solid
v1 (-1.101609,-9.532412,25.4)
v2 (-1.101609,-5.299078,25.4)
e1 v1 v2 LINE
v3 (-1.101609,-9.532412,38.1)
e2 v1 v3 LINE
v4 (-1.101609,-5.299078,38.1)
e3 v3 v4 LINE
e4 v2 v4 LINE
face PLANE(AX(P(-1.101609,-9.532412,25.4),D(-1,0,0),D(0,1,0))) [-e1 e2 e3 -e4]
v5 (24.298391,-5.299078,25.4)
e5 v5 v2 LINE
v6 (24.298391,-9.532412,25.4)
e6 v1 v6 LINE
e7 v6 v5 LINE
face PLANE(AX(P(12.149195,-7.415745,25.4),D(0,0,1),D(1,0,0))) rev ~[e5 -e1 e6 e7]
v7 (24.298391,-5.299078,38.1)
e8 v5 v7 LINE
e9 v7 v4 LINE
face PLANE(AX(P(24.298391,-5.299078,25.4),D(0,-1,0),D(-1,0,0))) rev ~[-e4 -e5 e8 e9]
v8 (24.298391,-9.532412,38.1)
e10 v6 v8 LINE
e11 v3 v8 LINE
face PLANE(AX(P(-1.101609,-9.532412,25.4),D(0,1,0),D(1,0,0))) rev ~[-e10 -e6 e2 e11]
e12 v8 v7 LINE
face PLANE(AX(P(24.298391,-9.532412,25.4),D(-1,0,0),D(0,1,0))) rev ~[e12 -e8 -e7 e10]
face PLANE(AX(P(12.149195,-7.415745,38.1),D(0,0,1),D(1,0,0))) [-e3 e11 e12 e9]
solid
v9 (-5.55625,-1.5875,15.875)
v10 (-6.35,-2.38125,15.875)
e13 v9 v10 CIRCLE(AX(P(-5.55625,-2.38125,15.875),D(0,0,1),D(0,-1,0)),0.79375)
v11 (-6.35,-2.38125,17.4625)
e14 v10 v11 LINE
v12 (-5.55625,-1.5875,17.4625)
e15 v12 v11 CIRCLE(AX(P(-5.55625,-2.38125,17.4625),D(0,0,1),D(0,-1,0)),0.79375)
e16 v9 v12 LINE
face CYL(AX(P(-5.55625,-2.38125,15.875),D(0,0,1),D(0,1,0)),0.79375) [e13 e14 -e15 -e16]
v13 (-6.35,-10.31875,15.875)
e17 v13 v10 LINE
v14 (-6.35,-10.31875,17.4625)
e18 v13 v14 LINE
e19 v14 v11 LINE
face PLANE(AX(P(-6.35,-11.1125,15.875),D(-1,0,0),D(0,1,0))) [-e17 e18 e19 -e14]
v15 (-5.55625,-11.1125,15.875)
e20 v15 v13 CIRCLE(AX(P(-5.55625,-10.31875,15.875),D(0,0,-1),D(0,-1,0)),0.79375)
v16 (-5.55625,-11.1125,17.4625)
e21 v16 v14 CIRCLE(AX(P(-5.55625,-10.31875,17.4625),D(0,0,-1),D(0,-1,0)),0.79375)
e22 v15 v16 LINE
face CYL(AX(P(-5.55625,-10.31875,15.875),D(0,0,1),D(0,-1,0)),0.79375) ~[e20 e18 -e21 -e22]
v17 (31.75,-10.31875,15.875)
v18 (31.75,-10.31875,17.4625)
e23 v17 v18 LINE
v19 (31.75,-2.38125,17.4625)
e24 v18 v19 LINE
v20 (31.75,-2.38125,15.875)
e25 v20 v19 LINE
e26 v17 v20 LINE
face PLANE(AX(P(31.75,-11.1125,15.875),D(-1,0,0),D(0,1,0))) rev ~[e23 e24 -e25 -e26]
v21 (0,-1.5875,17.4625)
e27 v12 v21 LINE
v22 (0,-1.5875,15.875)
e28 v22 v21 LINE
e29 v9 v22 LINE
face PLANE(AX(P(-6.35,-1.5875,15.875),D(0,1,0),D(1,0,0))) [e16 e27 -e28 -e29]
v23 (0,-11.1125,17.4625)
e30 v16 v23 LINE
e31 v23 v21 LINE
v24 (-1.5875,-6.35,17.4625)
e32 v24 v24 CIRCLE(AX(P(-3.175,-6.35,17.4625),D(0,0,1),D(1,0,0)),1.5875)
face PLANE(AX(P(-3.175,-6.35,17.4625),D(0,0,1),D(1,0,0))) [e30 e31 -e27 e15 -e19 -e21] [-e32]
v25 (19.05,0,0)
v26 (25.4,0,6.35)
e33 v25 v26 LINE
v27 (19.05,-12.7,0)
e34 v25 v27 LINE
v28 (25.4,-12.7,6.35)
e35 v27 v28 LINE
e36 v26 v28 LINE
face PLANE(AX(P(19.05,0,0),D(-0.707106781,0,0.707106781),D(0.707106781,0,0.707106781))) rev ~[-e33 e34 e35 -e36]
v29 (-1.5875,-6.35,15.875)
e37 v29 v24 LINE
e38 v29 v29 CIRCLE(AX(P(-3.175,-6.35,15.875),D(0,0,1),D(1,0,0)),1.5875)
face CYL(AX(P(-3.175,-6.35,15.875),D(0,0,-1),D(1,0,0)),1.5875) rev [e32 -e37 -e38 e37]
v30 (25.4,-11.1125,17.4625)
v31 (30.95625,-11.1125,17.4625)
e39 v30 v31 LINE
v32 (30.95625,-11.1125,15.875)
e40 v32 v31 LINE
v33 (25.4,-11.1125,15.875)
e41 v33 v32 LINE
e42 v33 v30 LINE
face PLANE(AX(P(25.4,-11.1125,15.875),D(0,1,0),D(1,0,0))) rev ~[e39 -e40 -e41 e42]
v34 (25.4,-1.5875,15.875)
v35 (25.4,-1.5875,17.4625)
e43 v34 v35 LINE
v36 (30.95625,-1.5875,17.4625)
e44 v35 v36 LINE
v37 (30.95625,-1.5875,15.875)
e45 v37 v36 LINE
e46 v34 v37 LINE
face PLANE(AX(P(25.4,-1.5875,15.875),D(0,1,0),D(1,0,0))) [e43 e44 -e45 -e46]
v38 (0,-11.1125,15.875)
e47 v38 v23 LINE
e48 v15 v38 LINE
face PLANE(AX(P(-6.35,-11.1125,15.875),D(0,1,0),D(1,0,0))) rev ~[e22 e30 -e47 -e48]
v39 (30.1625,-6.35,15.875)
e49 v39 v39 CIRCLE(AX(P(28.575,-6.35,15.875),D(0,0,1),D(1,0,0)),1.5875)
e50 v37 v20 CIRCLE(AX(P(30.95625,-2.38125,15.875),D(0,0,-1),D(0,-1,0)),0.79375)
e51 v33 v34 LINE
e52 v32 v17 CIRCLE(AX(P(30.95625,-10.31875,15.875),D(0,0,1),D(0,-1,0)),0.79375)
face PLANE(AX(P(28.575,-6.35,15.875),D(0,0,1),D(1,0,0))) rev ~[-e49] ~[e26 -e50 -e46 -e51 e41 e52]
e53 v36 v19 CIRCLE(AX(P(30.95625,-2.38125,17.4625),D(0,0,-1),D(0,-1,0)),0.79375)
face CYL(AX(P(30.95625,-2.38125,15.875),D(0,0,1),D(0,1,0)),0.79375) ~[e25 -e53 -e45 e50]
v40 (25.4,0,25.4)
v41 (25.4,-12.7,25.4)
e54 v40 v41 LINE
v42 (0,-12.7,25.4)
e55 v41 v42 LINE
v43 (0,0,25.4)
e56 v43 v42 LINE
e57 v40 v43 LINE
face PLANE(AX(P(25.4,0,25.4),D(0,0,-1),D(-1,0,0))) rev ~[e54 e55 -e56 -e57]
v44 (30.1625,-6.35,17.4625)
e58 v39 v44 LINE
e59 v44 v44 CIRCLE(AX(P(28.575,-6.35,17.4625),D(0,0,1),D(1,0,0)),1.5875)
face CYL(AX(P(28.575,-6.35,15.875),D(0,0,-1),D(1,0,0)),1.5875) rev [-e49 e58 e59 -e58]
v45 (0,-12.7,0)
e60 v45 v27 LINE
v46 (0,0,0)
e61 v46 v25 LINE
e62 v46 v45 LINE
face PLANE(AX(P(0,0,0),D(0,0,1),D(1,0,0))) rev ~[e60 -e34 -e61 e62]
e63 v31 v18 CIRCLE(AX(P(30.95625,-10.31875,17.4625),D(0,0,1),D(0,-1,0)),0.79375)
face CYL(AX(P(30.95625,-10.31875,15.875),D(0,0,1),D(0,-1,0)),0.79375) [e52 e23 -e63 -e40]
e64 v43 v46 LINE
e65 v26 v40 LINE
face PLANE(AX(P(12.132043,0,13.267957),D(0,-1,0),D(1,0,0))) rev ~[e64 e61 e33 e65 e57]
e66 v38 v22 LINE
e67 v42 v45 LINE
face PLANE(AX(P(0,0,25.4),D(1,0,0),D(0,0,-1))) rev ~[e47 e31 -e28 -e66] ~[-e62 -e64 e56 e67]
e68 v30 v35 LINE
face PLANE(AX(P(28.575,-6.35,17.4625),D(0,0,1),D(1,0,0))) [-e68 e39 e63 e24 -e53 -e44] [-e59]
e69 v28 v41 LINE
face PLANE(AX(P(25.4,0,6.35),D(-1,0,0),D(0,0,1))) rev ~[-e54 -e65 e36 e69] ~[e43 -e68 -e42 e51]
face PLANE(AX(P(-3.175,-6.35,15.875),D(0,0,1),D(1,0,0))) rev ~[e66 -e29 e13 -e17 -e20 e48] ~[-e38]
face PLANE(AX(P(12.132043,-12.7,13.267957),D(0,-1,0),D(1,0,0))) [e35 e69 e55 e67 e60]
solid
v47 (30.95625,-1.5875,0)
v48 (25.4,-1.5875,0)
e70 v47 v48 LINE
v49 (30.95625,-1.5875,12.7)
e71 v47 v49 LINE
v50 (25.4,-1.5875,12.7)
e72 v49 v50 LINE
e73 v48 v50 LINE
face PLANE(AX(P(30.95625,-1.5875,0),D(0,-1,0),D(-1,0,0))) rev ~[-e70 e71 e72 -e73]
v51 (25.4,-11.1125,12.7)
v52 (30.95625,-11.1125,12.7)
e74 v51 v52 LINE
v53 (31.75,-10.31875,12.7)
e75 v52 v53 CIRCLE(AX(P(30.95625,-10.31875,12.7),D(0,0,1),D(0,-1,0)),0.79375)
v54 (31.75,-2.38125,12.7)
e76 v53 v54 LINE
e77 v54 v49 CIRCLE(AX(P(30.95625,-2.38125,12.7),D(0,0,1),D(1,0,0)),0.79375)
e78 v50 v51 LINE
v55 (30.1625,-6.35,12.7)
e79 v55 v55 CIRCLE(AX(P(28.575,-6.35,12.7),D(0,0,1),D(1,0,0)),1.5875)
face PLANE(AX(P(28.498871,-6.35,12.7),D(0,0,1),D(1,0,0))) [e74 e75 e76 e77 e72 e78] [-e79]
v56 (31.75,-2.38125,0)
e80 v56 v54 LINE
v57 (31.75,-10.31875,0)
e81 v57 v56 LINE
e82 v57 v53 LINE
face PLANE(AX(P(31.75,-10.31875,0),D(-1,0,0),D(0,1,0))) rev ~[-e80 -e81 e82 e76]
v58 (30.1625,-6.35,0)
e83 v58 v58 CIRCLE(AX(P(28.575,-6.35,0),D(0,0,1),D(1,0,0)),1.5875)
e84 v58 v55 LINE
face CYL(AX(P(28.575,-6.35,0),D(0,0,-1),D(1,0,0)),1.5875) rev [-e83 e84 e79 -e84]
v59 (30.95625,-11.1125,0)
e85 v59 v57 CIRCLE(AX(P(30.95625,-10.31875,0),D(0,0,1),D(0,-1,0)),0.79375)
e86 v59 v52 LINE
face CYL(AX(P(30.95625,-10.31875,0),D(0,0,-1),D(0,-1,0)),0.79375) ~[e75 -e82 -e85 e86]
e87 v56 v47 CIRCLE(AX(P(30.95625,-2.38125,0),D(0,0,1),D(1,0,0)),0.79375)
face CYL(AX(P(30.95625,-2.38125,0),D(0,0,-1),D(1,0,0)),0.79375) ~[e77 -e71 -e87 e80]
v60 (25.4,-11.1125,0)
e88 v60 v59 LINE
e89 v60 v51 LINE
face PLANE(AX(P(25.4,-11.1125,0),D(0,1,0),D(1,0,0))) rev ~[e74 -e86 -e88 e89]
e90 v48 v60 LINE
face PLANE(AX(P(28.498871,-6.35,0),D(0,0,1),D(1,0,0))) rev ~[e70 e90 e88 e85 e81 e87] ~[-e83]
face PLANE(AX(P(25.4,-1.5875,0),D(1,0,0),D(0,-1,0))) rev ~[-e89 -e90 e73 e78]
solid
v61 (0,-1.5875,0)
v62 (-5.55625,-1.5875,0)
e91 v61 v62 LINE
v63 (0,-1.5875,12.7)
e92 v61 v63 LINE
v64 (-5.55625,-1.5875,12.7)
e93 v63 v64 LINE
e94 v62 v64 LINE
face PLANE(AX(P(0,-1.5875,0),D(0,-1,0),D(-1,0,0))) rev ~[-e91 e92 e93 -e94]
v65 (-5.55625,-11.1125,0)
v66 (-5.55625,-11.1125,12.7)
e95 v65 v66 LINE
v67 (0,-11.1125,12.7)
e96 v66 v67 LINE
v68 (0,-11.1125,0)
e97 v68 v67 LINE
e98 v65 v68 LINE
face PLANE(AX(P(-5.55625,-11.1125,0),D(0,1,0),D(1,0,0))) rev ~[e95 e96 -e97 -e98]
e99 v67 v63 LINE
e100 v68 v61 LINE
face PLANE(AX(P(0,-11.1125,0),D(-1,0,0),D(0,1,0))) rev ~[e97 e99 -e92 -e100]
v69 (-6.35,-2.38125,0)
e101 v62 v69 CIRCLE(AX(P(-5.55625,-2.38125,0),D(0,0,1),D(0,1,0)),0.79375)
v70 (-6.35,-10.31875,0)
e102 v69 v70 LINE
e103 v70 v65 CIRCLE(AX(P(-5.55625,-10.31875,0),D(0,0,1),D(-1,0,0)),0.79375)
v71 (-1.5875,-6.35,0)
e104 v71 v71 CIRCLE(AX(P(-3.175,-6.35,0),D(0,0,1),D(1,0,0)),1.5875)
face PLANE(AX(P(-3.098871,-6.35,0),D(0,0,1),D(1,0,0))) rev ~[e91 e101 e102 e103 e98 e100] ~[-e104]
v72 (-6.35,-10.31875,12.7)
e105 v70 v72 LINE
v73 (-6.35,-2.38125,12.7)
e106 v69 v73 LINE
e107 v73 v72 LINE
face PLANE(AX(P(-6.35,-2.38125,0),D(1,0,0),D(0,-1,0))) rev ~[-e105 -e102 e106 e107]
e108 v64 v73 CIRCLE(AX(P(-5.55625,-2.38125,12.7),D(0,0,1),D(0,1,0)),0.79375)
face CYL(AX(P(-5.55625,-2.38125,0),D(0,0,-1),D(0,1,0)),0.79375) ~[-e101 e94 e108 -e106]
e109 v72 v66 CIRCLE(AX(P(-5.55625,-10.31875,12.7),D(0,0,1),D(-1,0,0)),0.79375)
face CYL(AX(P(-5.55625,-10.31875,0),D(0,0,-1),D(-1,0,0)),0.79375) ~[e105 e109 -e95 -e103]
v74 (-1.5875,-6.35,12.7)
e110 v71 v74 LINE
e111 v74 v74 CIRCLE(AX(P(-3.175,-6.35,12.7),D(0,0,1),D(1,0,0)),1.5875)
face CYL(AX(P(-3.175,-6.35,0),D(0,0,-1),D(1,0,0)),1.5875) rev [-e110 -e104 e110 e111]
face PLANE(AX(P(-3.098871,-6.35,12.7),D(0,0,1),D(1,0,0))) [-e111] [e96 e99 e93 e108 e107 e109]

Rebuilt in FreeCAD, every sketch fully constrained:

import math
import FreeCAD as App
import Part
import Sketcher
Q = App.Units.Quantity


def edges_at(feature, points):
    """Names of the edges that pass closest to the given points."""
    edges = feature.Shape.Edges
    near = lambda p: min(range(len(edges)), key=lambda i: edges[i].distToShape(Part.Vertex(*p))[0])
    return sorted({f"Edge{near(p) + 1}" for p in points})


def add_polygon(sketch, points):
    """Adds a closed chain of lines whose ends are joined by coincident constraints."""
    first, n = sketch.GeometryCount, len(points)
    for a, b in zip(points, points[1:] + points[:1]):
        sketch.addGeometry(Part.LineSegment(App.Vector(*a, 0), App.Vector(*b, 0)), False)
    for i in range(n):
        sketch.addConstraint(Sketcher.Constraint("Coincident", first + i, 2, first + (i + 1) % n, 1))

doc = App.newDocument("Part")
body = doc.addObject("PartDesign::Body", "Body")

# Sketch on XZ plane
sketch1 = body.newObject("Sketcher::SketchObject", "Sketch")
sketch1.AttachmentSupport = (doc.getObject("XZ_Plane"), [""])
sketch1.MapMode = "FlatFace"
add_polygon(sketch1, [(0, 25), (0, 0), (19, 0), (25, 6), (25, 25)])  # lines 0-4
sketch1.addConstraint(Sketcher.Constraint("Vertical", 0))
sketch1.addConstraint(Sketcher.Constraint("Horizontal", 1))
sketch1.addConstraint(Sketcher.Constraint("Vertical", 3))
sketch1.addConstraint(Sketcher.Constraint("Horizontal", 4))
sketch1.addConstraint(Sketcher.Constraint("Coincident", 0, 2, -1, 1))
sketch1.addConstraint(Sketcher.Constraint("Equal", 4, 0))
sketch1.addConstraint(Sketcher.Constraint("Equal", 1, 3))
sketch1.addConstraint(Sketcher.Constraint("DistanceX", 4, 2, 4, 1, Q("1 in")))
sketch1.addConstraint(Sketcher.Constraint("DistanceX", 1, 1, 1, 2, Q("0.75 in")))
pad1 = body.newObject("PartDesign::Pad", "Pad")
pad1.Profile = sketch1
pad1.Length = Q("0.5 in")

# Sketch on XY plane
sketch2 = body.newObject("Sketcher::SketchObject", "Sketch001")
sketch2.AttachmentSupport = (doc.getObject("XY_Plane"), [""])
sketch2.MapMode = "FlatFace"
sketch2.AttachmentOffset = App.Placement(App.Vector(0, 0, 0.625 * 25.4), App.Rotation())
add_polygon(sketch2, [(-6.3, -1.6), (-6.3, -11.1), (0, -11.1), (0, -1.6)])  # lines 0-3
sketch2.addGeometry(Part.Circle(App.Vector(-3.2, -6.3, 0), App.Vector(0, 0, 1), 1.6), False)  # 4
sketch2.addConstraint(Sketcher.Constraint("Vertical", 0))
sketch2.addConstraint(Sketcher.Constraint("Horizontal", 1))
sketch2.addConstraint(Sketcher.Constraint("Vertical", 2))
sketch2.addConstraint(Sketcher.Constraint("Horizontal", 3))
sketch2.addConstraint(Sketcher.Constraint("PointOnObject", 1, 2, -2))
sketch2.addConstraint(Sketcher.Constraint("Diameter", 4, Q("0.125 in")))
sketch2.addConstraint(Sketcher.Constraint("DistanceX", 1, 1, 1, 2, Q("0.25 in")))
sketch2.addConstraint(Sketcher.Constraint("DistanceY", 0, 2, 0, 1, Q("0.375 in")))
sketch2.addConstraint(Sketcher.Constraint("DistanceY", 4, 3, -1, 1, Q("0.25 in")))
sketch2.addConstraint(Sketcher.Constraint("DistanceX", 4, 3, -1, 1, Q("0.125 in")))
sketch2.addConstraint(Sketcher.Constraint("DistanceY", 0, 2, -1, 1, Q("0.4375 in")))
pad2 = body.newObject("PartDesign::Pad", "Pad001")
pad2.Profile = sketch2
pad2.Length = Q("0.0625 in")

# Sketch on XY plane
sketch3 = body.newObject("Sketcher::SketchObject", "Sketch002")
sketch3.AttachmentSupport = (doc.getObject("XY_Plane"), [""])
sketch3.MapMode = "FlatFace"
sketch3.AttachmentOffset = App.Placement(App.Vector(0, 0, 0.625 * 25.4), App.Rotation())
add_polygon(sketch3, [(25.4, -1.6), (25.4, -11.1), (31.8, -11.1), (31.8, -1.6)])  # lines 0-3
sketch3.addGeometry(Part.Circle(App.Vector(28.6, -6.3, 0), App.Vector(0, 0, 1), 1.6), False)  # 4
sketch3.addConstraint(Sketcher.Constraint("Vertical", 0))
sketch3.addConstraint(Sketcher.Constraint("Horizontal", 1))
sketch3.addConstraint(Sketcher.Constraint("Vertical", 2))
sketch3.addConstraint(Sketcher.Constraint("Horizontal", 3))
sketch3.addConstraint(Sketcher.Constraint("Diameter", 4, Q("0.125 in")))
sketch3.addConstraint(Sketcher.Constraint("DistanceX", -1, 1, 0, 2, Q("1 in")))
sketch3.addConstraint(Sketcher.Constraint("DistanceX", 1, 1, 1, 2, Q("0.25 in")))
sketch3.addConstraint(Sketcher.Constraint("DistanceY", 0, 2, 0, 1, Q("0.375 in")))
sketch3.addConstraint(Sketcher.Constraint("DistanceY", 4, 3, -1, 1, Q("0.25 in")))
sketch3.addConstraint(Sketcher.Constraint("DistanceX", -1, 1, 4, 3, Q("1.125 in")))
sketch3.addConstraint(Sketcher.Constraint("DistanceY", 0, 2, -1, 1, Q("0.4375 in")))
pad3 = body.newObject("PartDesign::Pad", "Pad002")
pad3.Profile = sketch3
pad3.Length = Q("0.0625 in")
doc.recompute()

fillet = body.newObject("PartDesign::Fillet", "Fillet")
fillet.Base = (pad3, edges_at(pad3, [
    (31.75, -11.113, 16.669),
    (-6.35, -11.113, 16.669),
    (31.75, -1.587, 16.669),
    (-6.35, -1.587, 16.669),
]))
fillet.Radius = Q("0.03125 in")
body2 = doc.addObject("PartDesign::Body", "Body001")

# Sketch on XY plane
sketch4 = body2.newObject("Sketcher::SketchObject", "Sketch003")
sketch4.AttachmentSupport = (doc.getObject("XY_Plane001"), [""])
sketch4.MapMode = "FlatFace"
sketch4.addGeometry(Part.LineSegment(App.Vector(25.4, -1.6, 0), App.Vector(25.4, -11.1, 0)), False)
sketch4.addGeometry(Part.LineSegment(App.Vector(25.4, -11.1, 0), App.Vector(31, -11.1, 0)), False)
sketch4.addGeometry(Part.ArcOfCircle(Part.Circle(App.Vector(31, -10.3, 0), App.Vector(0, 0, 1), 0.8), math.radians(-90), math.radians(0)), False)
sketch4.addGeometry(Part.LineSegment(App.Vector(31.8, -10.3, 0), App.Vector(31.8, -2.4, 0)), False)
sketch4.addGeometry(Part.ArcOfCircle(Part.Circle(App.Vector(31, -2.4, 0), App.Vector(0, 0, 1), 0.8), math.radians(0), math.radians(90)), False)
sketch4.addGeometry(Part.LineSegment(App.Vector(31, -1.6, 0), App.Vector(25.4, -1.6, 0)), False)
sketch4.addGeometry(Part.Circle(App.Vector(28.6, -6.3, 0), App.Vector(0, 0, 1), 1.6), False)
sketch4.addConstraint(Sketcher.Constraint("Coincident", 0, 2, 1, 1))
sketch4.addConstraint(Sketcher.Constraint("Tangent", 1, 2, 2, 1))
sketch4.addConstraint(Sketcher.Constraint("Tangent", 2, 2, 3, 1))
sketch4.addConstraint(Sketcher.Constraint("Tangent", 3, 2, 4, 1))
sketch4.addConstraint(Sketcher.Constraint("Tangent", 4, 2, 5, 1))
sketch4.addConstraint(Sketcher.Constraint("Coincident", 5, 2, 0, 1))
sketch4.addConstraint(Sketcher.Constraint("Vertical", 0))
sketch4.addConstraint(Sketcher.Constraint("Horizontal", 1))
sketch4.addConstraint(Sketcher.Constraint("Vertical", 3))
sketch4.addConstraint(Sketcher.Constraint("Horizontal", 5))
sketch4.addConstraint(Sketcher.Constraint("Equal", 2, 4))
sketch4.addConstraint(Sketcher.Constraint("Diameter", 6, Q("0.125 in")))
sketch4.addConstraint(Sketcher.Constraint("DistanceX", -1, 1, 0, 2, Q("1 in")))
sketch4.addConstraint(Sketcher.Constraint("Radius", 2, Q("0.03125 in")))
sketch4.addConstraint(Sketcher.Constraint("DistanceX", 1, 1, 1, 2, Q("0.21875 in")))
sketch4.addConstraint(Sketcher.Constraint("DistanceY", 0, 2, 0, 1, Q("0.375 in")))
sketch4.addConstraint(Sketcher.Constraint("DistanceY", 6, 3, -1, 1, Q("0.25 in")))
sketch4.addConstraint(Sketcher.Constraint("DistanceY", 2, 3, -1, 1, Q("0.40625 in")))
sketch4.addConstraint(Sketcher.Constraint("DistanceX", -1, 1, 6, 3, Q("1.125 in")))
pad4 = body2.newObject("PartDesign::Pad", "Pad003")
pad4.Profile = sketch4
pad4.Length = Q("0.5 in")
body3 = doc.addObject("PartDesign::Body", "Body002")

# Sketch on XY plane
sketch5 = body3.newObject("Sketcher::SketchObject", "Sketch004")
sketch5.AttachmentSupport = (doc.getObject("XY_Plane002"), [""])
sketch5.MapMode = "FlatFace"
sketch5.addGeometry(Part.LineSegment(App.Vector(0, -11.1, 0), App.Vector(0, -1.6, 0)), False)
sketch5.addGeometry(Part.LineSegment(App.Vector(0, -1.6, 0), App.Vector(-5.6, -1.6, 0)), False)
sketch5.addGeometry(Part.ArcOfCircle(Part.Circle(App.Vector(-5.6, -2.4, 0), App.Vector(0, 0, 1), 0.8), math.radians(90), math.radians(180)), False)
sketch5.addGeometry(Part.LineSegment(App.Vector(-6.3, -2.4, 0), App.Vector(-6.3, -10.3, 0)), False)
sketch5.addGeometry(Part.ArcOfCircle(Part.Circle(App.Vector(-5.6, -10.3, 0), App.Vector(0, 0, 1), 0.8), math.radians(180), math.radians(270)), False)
sketch5.addGeometry(Part.LineSegment(App.Vector(-5.6, -11.1, 0), App.Vector(0, -11.1, 0)), False)
sketch5.addGeometry(Part.Circle(App.Vector(-3.2, -6.3, 0), App.Vector(0, 0, 1), 1.6), False)
sketch5.addConstraint(Sketcher.Constraint("Coincident", 0, 2, 1, 1))
sketch5.addConstraint(Sketcher.Constraint("Tangent", 1, 2, 2, 1))
sketch5.addConstraint(Sketcher.Constraint("Tangent", 2, 2, 3, 1))
sketch5.addConstraint(Sketcher.Constraint("Tangent", 3, 2, 4, 1))
sketch5.addConstraint(Sketcher.Constraint("Tangent", 4, 2, 5, 1))
sketch5.addConstraint(Sketcher.Constraint("Coincident", 5, 2, 0, 1))
sketch5.addConstraint(Sketcher.Constraint("Vertical", 0))
sketch5.addConstraint(Sketcher.Constraint("Horizontal", 1))
sketch5.addConstraint(Sketcher.Constraint("Vertical", 3))
sketch5.addConstraint(Sketcher.Constraint("Horizontal", 5))
sketch5.addConstraint(Sketcher.Constraint("Equal", 2, 4))
sketch5.addConstraint(Sketcher.Constraint("PointOnObject", 0, 2, -2))
sketch5.addConstraint(Sketcher.Constraint("Diameter", 6, Q("0.125 in")))
sketch5.addConstraint(Sketcher.Constraint("Radius", 2, Q("0.03125 in")))
sketch5.addConstraint(Sketcher.Constraint("DistanceX", 1, 2, 1, 1, Q("0.21875 in")))
sketch5.addConstraint(Sketcher.Constraint("DistanceY", 0, 1, 0, 2, Q("0.375 in")))
sketch5.addConstraint(Sketcher.Constraint("DistanceY", 6, 3, -1, 1, Q("0.25 in")))
sketch5.addConstraint(Sketcher.Constraint("DistanceY", 2, 3, -1, 1, Q("0.09375 in")))
sketch5.addConstraint(Sketcher.Constraint("DistanceX", 6, 3, -1, 1, Q("0.125 in")))
pad5 = body3.newObject("PartDesign::Pad", "Pad004")
pad5.Profile = sketch5
pad5.Length = Q("0.5 in")
body4 = doc.addObject("PartDesign::Body", "Body003")

# Sketch on XY plane
sketch6 = body4.newObject("Sketcher::SketchObject", "Sketch005")
sketch6.AttachmentSupport = (doc.getObject("XY_Plane003"), [""])
sketch6.MapMode = "FlatFace"
sketch6.AttachmentOffset = App.Placement(App.Vector(0, 0, 1 * 25.4), App.Rotation())
add_polygon(sketch6, [(24.3, -9.5), (24.3, -5.3), (-1.1, -5.3), (-1.1, -9.5)])  # lines 0-3
sketch6.addConstraint(Sketcher.Constraint("Vertical", 0))
sketch6.addConstraint(Sketcher.Constraint("Horizontal", 1))
sketch6.addConstraint(Sketcher.Constraint("Vertical", 2))
sketch6.addConstraint(Sketcher.Constraint("Horizontal", 3))
sketch6.addConstraint(Sketcher.Constraint("DistanceX", 1, 2, 1, 1, Q("1 in")))
sketch6.addConstraint(Sketcher.Constraint("DistanceY", 0, 1, 0, 2, Q("4.233333 mm")))
sketch6.addConstraint(Sketcher.Constraint("DistanceX", -1, 1, 0, 2, Q("24.298391 mm")))
sketch6.addConstraint(Sketcher.Constraint("DistanceY", 0, 2, -1, 1, Q("5.299078 mm")))
pad6 = body4.newObject("PartDesign::Pad", "Pad005")
pad6.Profile = sketch6
pad6.Length = Q("0.5 in")

doc.recompute()
